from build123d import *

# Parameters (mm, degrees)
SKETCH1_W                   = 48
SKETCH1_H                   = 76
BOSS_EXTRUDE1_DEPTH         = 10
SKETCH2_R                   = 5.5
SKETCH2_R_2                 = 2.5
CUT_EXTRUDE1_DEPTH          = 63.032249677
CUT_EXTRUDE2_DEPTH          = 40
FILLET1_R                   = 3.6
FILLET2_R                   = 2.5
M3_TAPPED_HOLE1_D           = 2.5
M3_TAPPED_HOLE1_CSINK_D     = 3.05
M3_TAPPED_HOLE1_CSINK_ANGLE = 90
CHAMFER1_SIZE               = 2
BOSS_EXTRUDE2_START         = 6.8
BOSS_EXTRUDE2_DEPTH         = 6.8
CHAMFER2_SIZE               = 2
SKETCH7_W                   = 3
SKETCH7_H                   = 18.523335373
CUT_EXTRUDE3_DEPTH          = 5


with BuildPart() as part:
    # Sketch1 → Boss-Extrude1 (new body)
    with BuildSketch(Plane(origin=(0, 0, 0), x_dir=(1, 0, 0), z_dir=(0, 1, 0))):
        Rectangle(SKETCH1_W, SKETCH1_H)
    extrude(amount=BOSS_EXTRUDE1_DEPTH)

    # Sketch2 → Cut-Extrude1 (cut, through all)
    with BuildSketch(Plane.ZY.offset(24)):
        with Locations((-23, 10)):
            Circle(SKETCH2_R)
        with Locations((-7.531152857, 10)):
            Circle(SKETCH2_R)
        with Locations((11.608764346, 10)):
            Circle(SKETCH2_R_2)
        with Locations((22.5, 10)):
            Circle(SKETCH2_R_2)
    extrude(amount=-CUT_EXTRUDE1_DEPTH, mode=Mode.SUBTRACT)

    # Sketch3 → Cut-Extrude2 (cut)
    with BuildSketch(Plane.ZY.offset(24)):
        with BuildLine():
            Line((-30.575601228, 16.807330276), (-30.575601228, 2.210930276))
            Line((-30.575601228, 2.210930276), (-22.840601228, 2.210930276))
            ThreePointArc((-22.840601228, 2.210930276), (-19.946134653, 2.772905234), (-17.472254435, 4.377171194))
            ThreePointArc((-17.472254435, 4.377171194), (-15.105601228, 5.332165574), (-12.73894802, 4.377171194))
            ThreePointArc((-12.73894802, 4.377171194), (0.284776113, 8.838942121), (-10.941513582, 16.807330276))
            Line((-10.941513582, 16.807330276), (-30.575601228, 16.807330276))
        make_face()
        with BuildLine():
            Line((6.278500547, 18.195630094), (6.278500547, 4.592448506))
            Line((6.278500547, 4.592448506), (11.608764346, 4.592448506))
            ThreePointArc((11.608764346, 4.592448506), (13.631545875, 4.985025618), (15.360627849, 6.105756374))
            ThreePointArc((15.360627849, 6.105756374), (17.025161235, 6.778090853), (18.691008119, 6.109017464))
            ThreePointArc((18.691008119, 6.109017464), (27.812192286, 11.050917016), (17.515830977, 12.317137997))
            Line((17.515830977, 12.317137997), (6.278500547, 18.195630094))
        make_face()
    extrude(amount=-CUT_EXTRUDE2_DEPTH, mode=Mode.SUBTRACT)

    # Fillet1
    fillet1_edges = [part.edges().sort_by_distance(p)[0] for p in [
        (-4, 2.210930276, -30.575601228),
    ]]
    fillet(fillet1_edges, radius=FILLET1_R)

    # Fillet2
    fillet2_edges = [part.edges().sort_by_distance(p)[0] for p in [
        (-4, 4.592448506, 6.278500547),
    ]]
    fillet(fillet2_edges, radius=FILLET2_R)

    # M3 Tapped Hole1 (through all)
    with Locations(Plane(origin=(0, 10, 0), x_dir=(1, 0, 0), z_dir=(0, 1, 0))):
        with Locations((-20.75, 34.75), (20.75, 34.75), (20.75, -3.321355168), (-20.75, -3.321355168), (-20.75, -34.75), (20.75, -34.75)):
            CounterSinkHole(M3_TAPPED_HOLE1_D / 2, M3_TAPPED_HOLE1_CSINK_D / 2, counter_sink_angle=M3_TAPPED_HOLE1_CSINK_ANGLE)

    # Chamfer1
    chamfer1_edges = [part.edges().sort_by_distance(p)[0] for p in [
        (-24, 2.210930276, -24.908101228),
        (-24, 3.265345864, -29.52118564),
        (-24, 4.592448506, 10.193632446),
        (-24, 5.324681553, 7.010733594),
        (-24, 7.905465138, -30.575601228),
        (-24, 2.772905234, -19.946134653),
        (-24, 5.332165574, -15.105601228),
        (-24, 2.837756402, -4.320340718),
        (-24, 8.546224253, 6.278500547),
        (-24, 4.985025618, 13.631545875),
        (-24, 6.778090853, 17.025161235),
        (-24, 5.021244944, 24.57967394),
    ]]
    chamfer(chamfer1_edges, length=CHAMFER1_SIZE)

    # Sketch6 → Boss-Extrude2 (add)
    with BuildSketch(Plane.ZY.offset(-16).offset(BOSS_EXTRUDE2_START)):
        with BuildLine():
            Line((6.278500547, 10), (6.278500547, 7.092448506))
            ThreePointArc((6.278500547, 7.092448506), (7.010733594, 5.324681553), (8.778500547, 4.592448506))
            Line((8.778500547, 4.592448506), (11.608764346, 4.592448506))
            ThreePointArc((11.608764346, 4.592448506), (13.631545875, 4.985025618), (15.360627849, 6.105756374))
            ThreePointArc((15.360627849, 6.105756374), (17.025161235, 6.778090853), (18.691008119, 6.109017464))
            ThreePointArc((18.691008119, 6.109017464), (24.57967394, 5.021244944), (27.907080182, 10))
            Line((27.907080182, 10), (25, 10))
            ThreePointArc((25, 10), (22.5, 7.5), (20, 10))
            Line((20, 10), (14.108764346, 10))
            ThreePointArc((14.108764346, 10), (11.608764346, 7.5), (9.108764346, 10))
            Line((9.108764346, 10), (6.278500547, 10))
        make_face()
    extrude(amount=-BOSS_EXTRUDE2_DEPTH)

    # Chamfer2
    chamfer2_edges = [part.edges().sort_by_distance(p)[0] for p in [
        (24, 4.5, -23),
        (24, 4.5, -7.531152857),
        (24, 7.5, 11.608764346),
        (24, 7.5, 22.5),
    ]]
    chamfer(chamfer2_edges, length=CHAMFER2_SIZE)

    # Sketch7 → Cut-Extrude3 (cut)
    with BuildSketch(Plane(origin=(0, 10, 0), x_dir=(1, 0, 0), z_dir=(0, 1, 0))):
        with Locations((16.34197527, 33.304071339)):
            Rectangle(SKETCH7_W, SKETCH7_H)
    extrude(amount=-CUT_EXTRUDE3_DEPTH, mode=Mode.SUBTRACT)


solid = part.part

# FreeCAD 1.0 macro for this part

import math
import FreeCAD as App
import Part
import Sketcher

V = App.Vector
Q = App.Units.Quantity


def edges_at(feature, points):
    """Names of the edges that pass closest to the given points."""
    edges = feature.Shape.Edges
    near = lambda p: min(range(len(edges)), key=lambda i: edges[i].distToShape(Part.Vertex(*p))[0])
    return sorted({f"Edge{near(p) + 1}" for p in points})

doc = App.newDocument("Part")
body = doc.addObject("PartDesign::Body", "Body")

# Sketch on XZ plane
sketch1 = doc.addObject("Sketcher::SketchObject", "Sketch")
body.addObject(sketch1)
sketch1.AttachmentSupport = (doc.XZ_Plane, [""])
sketch1.MapMode = "FlatFace"
sketch1.addGeometry([
    Part.LineSegment(V(-24, -38, 0), V(-24, 38, 0)),
    Part.LineSegment(V(-24, 38, 0), V(24, 38, 0)),
    Part.LineSegment(V(24, 38, 0), V(24, -38, 0)),
    Part.LineSegment(V(24, -38, 0), V(-24, -38, 0)),
], False)
sketch1.addConstraint([
    Sketcher.Constraint("Coincident", 0, 2, 1, 1),
    Sketcher.Constraint("Coincident", 1, 2, 2, 1),
    Sketcher.Constraint("Coincident", 2, 2, 3, 1),
    Sketcher.Constraint("Coincident", 3, 2, 0, 1),
    Sketcher.Constraint("Vertical", 0),
    Sketcher.Constraint("Horizontal", 1),
    Sketcher.Constraint("Vertical", 2),
    Sketcher.Constraint("Horizontal", 3),
    Sketcher.Constraint("Symmetric", 0, 2, 2, 2, -1, 1),
    Sketcher.Constraint("DistanceX", 1, 1, 1, 2, Q("48 mm")),
    Sketcher.Constraint("DistanceY", 0, 1, 0, 2, Q("76 mm")),
])
pad1 = doc.addObject("PartDesign::Pad", "Pad")
body.addObject(pad1)
pad1.Profile = sketch1
pad1.Length = 10
pad1.Reversed = True

# Sketch on YZ plane
sketch2 = doc.addObject("Sketcher::SketchObject", "Sketch001")
body.addObject(sketch2)
sketch2.AttachmentSupport = (doc.YZ_Plane, [""])
sketch2.MapMode = "FlatFace"
sketch2.AttachmentOffset = App.Placement(V(0, 0, -24), App.Rotation())
sketch2.addGeometry([
    Part.Circle(V(10, -23, 0), V(0, 0, 1), 5.5),
    Part.Circle(V(10, -7.5, 0), V(0, 0, 1), 5.5),
    Part.Circle(V(10, 11.6, 0), V(0, 0, 1), 2.5),
    Part.Circle(V(10, 22.5, 0), V(0, 0, 1), 2.5),
], False)
sketch2.addConstraint([
    Sketcher.Constraint("Equal", 0, 1),
    Sketcher.Constraint("Equal", 2, 3),
    Sketcher.Constraint("Vertical", 0, 3, 1, 3),
    Sketcher.Constraint("Vertical", 1, 3, 2, 3),
    Sketcher.Constraint("Vertical", 2, 3, 3, 3),
    Sketcher.Constraint("Diameter", 0, Q("11 mm")),
    Sketcher.Constraint("Diameter", 2, Q("5 mm")),
    Sketcher.Constraint("DistanceX", -1, 1, 0, 3, Q("10 mm")),
    Sketcher.Constraint("DistanceY", 0, 3, -1, 1, Q("23 mm")),
    Sketcher.Constraint("DistanceY", -1, 1, 3, 3, Q("22.5 mm")),
    Sketcher.Constraint("DistanceY", 1, 3, -1, 1, Q("7.531153 mm")),
    Sketcher.Constraint("DistanceY", -1, 1, 2, 3, Q("11.608764 mm")),
])
pocket1 = doc.addObject("PartDesign::Pocket", "Pocket")
body.addObject(pocket1)
pocket1.Profile = sketch2
pocket1.Type = "ThroughAll"
pocket1.Reversed = True

# Sketch on YZ plane
sketch3 = doc.addObject("Sketcher::SketchObject", "Sketch002")
body.addObject(sketch3)
sketch3.AttachmentSupport = (doc.YZ_Plane, [""])
sketch3.MapMode = "FlatFace"
sketch3.AttachmentOffset = App.Placement(V(0, 0, -24), App.Rotation())
sketch3.addGeometry([
    Part.LineSegment(V(16.8, -30.6, 0), V(2.2, -30.6, 0)),  # 0
    Part.LineSegment(V(2.2, -30.6, 0), V(2.2, -22.8, 0)),  # 1
    Part.ArcOfCircle(Part.Circle(V(9.9, -22.8, 0), V(0, 0, 1), 7.7), math.radians(136), math.radians(180)),  # 2
    Part.ArcOfCircle(Part.Circle(V(1.9, -15.1, 0), V(0, 0, 1), 3.4), math.radians(-44), math.radians(44)),  # 3
    Part.ArcOfCircle(Part.Circle(V(9.9, -7.4, 0), V(0, 0, 1), 7.7), math.radians(-27), math.radians(224)),  # 4
    Part.LineSegment(V(16.8, -10.9, 0), V(16.8, -30.6, 0)),  # 5
    Part.LineSegment(V(18.2, 6.3, 0), V(4.6, 6.3, 0)),  # 6
    Part.LineSegment(V(4.6, 6.3, 0), V(4.6, 11.6, 0)),  # 7
    Part.ArcOfCircle(Part.Circle(V(10, 11.6, 0), V(0, 0, 1), 5.4), math.radians(136), math.radians(180)),  # 8
    Part.ArcOfCircle(Part.Circle(V(4.4, 17, 0), V(0, 0, 1), 2.4), math.radians(-44), math.radians(44)),  # 9
    Part.ArcOfCircle(Part.Circle(V(10, 22.5, 0), V(0, 0, 1), 5.4), math.radians(-65), math.radians(224)),  # 10
    Part.LineSegment(V(12.3, 17.5, 0), V(18.2, 6.3, 0)),  # 11
], False)
sketch3.addConstraint([
    Sketcher.Constraint("Coincident", 0, 2, 1, 1),
    Sketcher.Constraint("Tangent", 1, 2, 2, 2),
    Sketcher.Constraint("Tangent", 2, 1, 3, 1),
    Sketcher.Constraint("Tangent", 3, 2, 4, 2),
    Sketcher.Constraint("Coincident", 4, 1, 5, 1),
    Sketcher.Constraint("Coincident", 5, 2, 0, 1),
    Sketcher.Constraint("Coincident", 6, 2, 7, 1),
    Sketcher.Constraint("Tangent", 7, 2, 8, 2),
    Sketcher.Constraint("Tangent", 8, 1, 9, 1),
    Sketcher.Constraint("Tangent", 9, 2, 10, 2),
    Sketcher.Constraint("Coincident", 10, 1, 11, 1),
    Sketcher.Constraint("Coincident", 11, 2, 6, 1),
    Sketcher.Constraint("Horizontal", 0),
    Sketcher.Constraint("Vertical", 1),
    Sketcher.Constraint("Vertical", 5),
    Sketcher.Constraint("Horizontal", 6),
    Sketcher.Constraint("Vertical", 7),
    Sketcher.Constraint("Equal", 2, 4),
    Sketcher.Constraint("Vertical", 2, 3, 4, 3),
    Sketcher.Constraint("Radius", 3, Q("3.41 mm")),
    Sketcher.Constraint("DistanceX", -1, 1, 8, 3, Q("10 mm")),
    Sketcher.Constraint("Radius", 2, Q("7.735 mm")),
    Sketcher.Constraint("DistanceY", 1, 1, 1, 2, Q("7.735 mm")),
    Sketcher.Constraint("Radius", 8, Q("5.407551 mm")),
    Sketcher.Constraint("Radius", 9, Q("2.402478 mm")),
    Sketcher.Constraint("DistanceY", 2, 3, 4, 3, Q("15.47 mm")),
    Sketcher.Constraint("DistanceX", 0, 2, 0, 1, Q("14.5964 mm")),
    Sketcher.Constraint("Radius", 10, Q("5.445618 mm")),
    Sketcher.Constraint("DistanceX", 6, 2, 6, 1, Q("13.603182 mm")),
    Sketcher.Constraint("DistanceY", 2, 3, -1, 1, Q("22.840601 mm")),
    Sketcher.Constraint("DistanceY", -1, 1, 6, 2, Q("6.278501 mm")),
    Sketcher.Constraint("DistanceX", 3, 3, 10, 3, Q("8.115901 mm")),
    Sketcher.Constraint("DistanceY", 7, 1, 7, 2, Q("5.330264 mm")),
    Sketcher.Constraint("DistanceX", -1, 1, 2, 3, Q("9.94593 mm")),
    Sketcher.Constraint("DistanceY", -1, 1, 9, 2, Q("18.691008 mm")),
    Sketcher.Constraint("DistanceY", -1, 1, 10, 1, Q("17.515831 mm")),
])
pocket2 = doc.addObject("PartDesign::Pocket", "Pocket001")
body.addObject(pocket2)
pocket2.Profile = sketch3
pocket2.Length = 40
pocket2.Reversed = True
doc.recompute()

fillet = doc.addObject("PartDesign::Fillet", "Fillet")
body.addObject(fillet)
fillet.Base = (pocket2, edges_at(pocket2, [(-4, 2.211, -30.576)]))
fillet.Radius = 3.6
doc.recompute()

fillet2 = doc.addObject("PartDesign::Fillet", "Fillet001")
body.addObject(fillet2)
fillet2.Base = (fillet, edges_at(fillet, [(-4, 4.592, 6.279)]))
fillet2.Radius = 2.5

# Sketch on XZ plane
sketch4 = doc.addObject("Sketcher::SketchObject", "Sketch003")
body.addObject(sketch4)
sketch4.AttachmentSupport = (doc.XZ_Plane, [""])
sketch4.MapMode = "FlatFace"
sketch4.AttachmentOffset = App.Placement(V(0, 0, -10), App.Rotation())
sketch4.addGeometry([
    Part.Circle(V(-20.8, -34.8, 0), V(0, 0, 1), 1.2),  # 0
    Part.Circle(V(20.8, -34.8, 0), V(0, 0, 1), 1.2),  # 1
    Part.Circle(V(20.8, 3.3, 0), V(0, 0, 1), 1.2),  # 2
    Part.Circle(V(-20.8, 3.3, 0), V(0, 0, 1), 1.2),  # 3
    Part.Circle(V(-20.8, 34.8, 0), V(0, 0, 1), 1.2),  # 4
    Part.Circle(V(20.8, 34.8, 0), V(0, 0, 1), 1.2),  # 5
], False)
sketch4.addConstraint([
    Sketcher.Constraint("Equal", 0, 1),
    Sketcher.Constraint("Equal", 1, 2),
    Sketcher.Constraint("Equal", 2, 3),
    Sketcher.Constraint("Equal", 3, 4),
    Sketcher.Constraint("Equal", 4, 5),
    Sketcher.Constraint("Symmetric", 1, 3, 4, 3, -1, 1),
    Sketcher.Constraint("Symmetric", 0, 3, 5, 3, -1, 1),
    Sketcher.Constraint("Symmetric", 0, 3, 1, 3, -2),
    Sketcher.Constraint("Symmetric", 2, 3, 3, 3, -2),
    Sketcher.Constraint("Vertical", 1, 3, 2, 3),
    Sketcher.Constraint("Diameter", 0, Q("2.5 mm")),
    Sketcher.Constraint("DistanceX", 0, 3, 1, 3, Q("41.5 mm")),
    Sketcher.Constraint("DistanceY", 0, 3, 4, 3, Q("69.5 mm")),
    Sketcher.Constraint("DistanceY", -1, 1, 2, 3, Q("3.321355 mm")),
])
doc.recompute()
hole = doc.addObject("PartDesign::Hole", "Hole")
body.addObject(hole)
hole.Profile = sketch4
hole.ThreadType = "None"
hole.Diameter = 2.5
hole.DepthType = "ThroughAll"
hole.HoleCutType = "Countersink"
hole.HoleCutDiameter = 3.05
hole.HoleCutCountersinkAngle = 90
hole.Reversed = True
doc.recompute()

chamfer = doc.addObject("PartDesign::Chamfer", "Chamfer")
body.addObject(chamfer)
chamfer.Base = (hole, edges_at(hole, [
    (-24, 2.211, -24.908),
    (-24, 3.265, -29.521),
    (-24, 4.592, 10.194),
    (-24, 5.325, 7.011),
    (-24, 7.905, -30.576),
    (-24, 2.773, -19.946),
    (-24, 5.332, -15.106),
    (-24, 2.838, -4.32),
    (-24, 8.546, 6.279),
    (-24, 4.985, 13.632),
    (-24, 6.778, 17.025),
    (-24, 5.021, 24.58),
]))
chamfer.Size = 2

# Sketch on YZ plane
sketch5 = doc.addObject("Sketcher::SketchObject", "Sketch004")
body.addObject(sketch5)
sketch5.AttachmentSupport = (doc.YZ_Plane, [""])
sketch5.MapMode = "FlatFace"
sketch5.AttachmentOffset = App.Placement(V(0, 0, 9.2), App.Rotation())
sketch5.addGeometry([
    Part.LineSegment(V(10, 6.3, 0), V(7.1, 6.3, 0)),  # 0
    Part.ArcOfCircle(Part.Circle(V(7.1, 8.8, 0), V(0, 0, 1), 2.5), math.radians(180), math.radians(270)),  # 1
    Part.LineSegment(V(4.6, 8.8, 0), V(4.6, 11.6, 0)),  # 2
    Part.ArcOfCircle(Part.Circle(V(10, 11.6, 0), V(0, 0, 1), 5.4), math.radians(136), math.radians(180)),  # 3
    Part.ArcOfCircle(Part.Circle(V(4.4, 17, 0), V(0, 0, 1), 2.4), math.radians(-44), math.radians(44)),  # 4
    Part.ArcOfCircle(Part.Circle(V(10, 22.5, 0), V(0, 0, 1), 5.4), math.radians(90), math.radians(224)),  # 5
    Part.LineSegment(V(10, 27.9, 0), V(10, 25, 0)),  # 6
    Part.ArcOfCircle(Part.Circle(V(10, 22.5, 0), V(0, 0, 1), 2.5), math.radians(90), math.radians(270)),  # 7
    Part.LineSegment(V(10, 20, 0), V(10, 14.1, 0)),  # 8
    Part.ArcOfCircle(Part.Circle(V(10, 11.6, 0), V(0, 0, 1), 2.5), math.radians(90), math.radians(270)),  # 9
    Part.LineSegment(V(10, 9.1, 0), V(10, 6.3, 0)),  # 10
], False)
sketch5.addConstraint([
    Sketcher.Constraint("Tangent", 0, 2, 1, 2),
    Sketcher.Constraint("Tangent", 1, 1, 2, 1),
    Sketcher.Constraint("Tangent", 2, 2, 3, 2),
    Sketcher.Constraint("Tangent", 3, 1, 4, 1),
    Sketcher.Constraint("Tangent", 4, 2, 5, 2),
    Sketcher.Constraint("Coincident", 5, 1, 6, 1),
    Sketcher.Constraint("Coincident", 6, 2, 7, 1),
    Sketcher.Constraint("Coincident", 7, 2, 8, 1),
    Sketcher.Constraint("Coincident", 8, 2, 9, 1),
    Sketcher.Constraint("Coincident", 9, 2, 10, 1),
    Sketcher.Constraint("Coincident", 10, 2, 0, 1),
    Sketcher.Constraint("Horizontal", 0),
    Sketcher.Constraint("Vertical", 2),
    Sketcher.Constraint("Vertical", 6),
    Sketcher.Constraint("Vertical", 8),
    Sketcher.Constraint("Vertical", 10),
    Sketcher.Constraint("Coincident", 9, 3, 3, 3),
    Sketcher.Constraint("Equal", 1, 7),
    Sketcher.Constraint("Equal", 7, 9),
    Sketcher.Constraint("Vertical", 3, 3, 7, 3),
    Sketcher.Constraint("Vertical", 9, 3, 5, 1),
    Sketcher.Constraint("Vertical", 6, 2, 7, 2),
    Sketcher.Constraint("Vertical", 8, 2, 9, 2),
    Sketcher.Constraint("Radius", 1, Q("2.5 mm")),
    Sketcher.Constraint("DistanceX", -1, 1, 3, 3, Q("10 mm")),
    Sketcher.Constraint("DistanceY", -1, 1, 6, 2, Q("25 mm")),
    Sketcher.Constraint("Radius", 3, Q("5.407551 mm")),
    Sketcher.Constraint("Radius", 4, Q("2.402478 mm")),
    Sketcher.Constraint("Radius", 5, Q("5.445618 mm")),
    Sketcher.Constraint("DistanceY", 6, 2, 6, 1, Q("2.90708 mm")),
    Sketcher.Constraint("DistanceY", -1, 1, 1, 3, Q("8.778501 mm")),
    Sketcher.Constraint("DistanceY", 2, 1, 2, 2, Q("2.830264 mm")),
    Sketcher.Constraint("DistanceY", -1, 1, 4, 2, Q("18.691008 mm")),
])
pad2 = doc.addObject("PartDesign::Pad", "Pad001")
body.addObject(pad2)
pad2.Profile = sketch5
pad2.Length = 6.8
doc.recompute()

chamfer2 = doc.addObject("PartDesign::Chamfer", "Chamfer001")
body.addObject(chamfer2)
chamfer2.Base = (pad2, edges_at(pad2, [
    (24, 4.5, -23),
    (24, 4.5, -7.531),
    (24, 7.5, 11.609),
    (24, 7.5, 22.5),
]))
chamfer2.Size = 2

# Sketch on XZ plane
sketch6 = doc.addObject("Sketcher::SketchObject", "Sketch005")
body.addObject(sketch6)
sketch6.AttachmentSupport = (doc.XZ_Plane, [""])
sketch6.MapMode = "FlatFace"
sketch6.AttachmentOffset = App.Placement(V(0, 0, -10), App.Rotation())
sketch6.addGeometry([
    Part.LineSegment(V(14.8, -42.6, 0), V(14.8, -24, 0)),
    Part.LineSegment(V(14.8, -24, 0), V(17.8, -24, 0)),
    Part.LineSegment(V(17.8, -24, 0), V(17.8, -42.6, 0)),
    Part.LineSegment(V(17.8, -42.6, 0), V(14.8, -42.6, 0)),
], False)
sketch6.addConstraint([
    Sketcher.Constraint("Coincident", 0, 2, 1, 1),
    Sketcher.Constraint("Coincident", 1, 2, 2, 1),
    Sketcher.Constraint("Coincident", 2, 2, 3, 1),
    Sketcher.Constraint("Coincident", 3, 2, 0, 1),
    Sketcher.Constraint("Vertical", 0),
    Sketcher.Constraint("Horizontal", 1),
    Sketcher.Constraint("Vertical", 2),
    Sketcher.Constraint("Horizontal", 3),
    Sketcher.Constraint("DistanceX", 1, 1, 1, 2, Q("3 mm")),
    Sketcher.Constraint("DistanceY", 0, 1, 0, 2, Q("18.523335 mm")),
    Sketcher.Constraint("DistanceY", 2, 2, -1, 1, Q("42.565739 mm")),
    Sketcher.Constraint("DistanceX", -1, 1, 0, 2, Q("14.841975 mm")),
])
pocket3 = doc.addObject("PartDesign::Pocket", "Pocket002")
body.addObject(pocket3)
pocket3.Profile = sketch6
pocket3.Length = 5
pocket3.Reversed = True

doc.recompute()
